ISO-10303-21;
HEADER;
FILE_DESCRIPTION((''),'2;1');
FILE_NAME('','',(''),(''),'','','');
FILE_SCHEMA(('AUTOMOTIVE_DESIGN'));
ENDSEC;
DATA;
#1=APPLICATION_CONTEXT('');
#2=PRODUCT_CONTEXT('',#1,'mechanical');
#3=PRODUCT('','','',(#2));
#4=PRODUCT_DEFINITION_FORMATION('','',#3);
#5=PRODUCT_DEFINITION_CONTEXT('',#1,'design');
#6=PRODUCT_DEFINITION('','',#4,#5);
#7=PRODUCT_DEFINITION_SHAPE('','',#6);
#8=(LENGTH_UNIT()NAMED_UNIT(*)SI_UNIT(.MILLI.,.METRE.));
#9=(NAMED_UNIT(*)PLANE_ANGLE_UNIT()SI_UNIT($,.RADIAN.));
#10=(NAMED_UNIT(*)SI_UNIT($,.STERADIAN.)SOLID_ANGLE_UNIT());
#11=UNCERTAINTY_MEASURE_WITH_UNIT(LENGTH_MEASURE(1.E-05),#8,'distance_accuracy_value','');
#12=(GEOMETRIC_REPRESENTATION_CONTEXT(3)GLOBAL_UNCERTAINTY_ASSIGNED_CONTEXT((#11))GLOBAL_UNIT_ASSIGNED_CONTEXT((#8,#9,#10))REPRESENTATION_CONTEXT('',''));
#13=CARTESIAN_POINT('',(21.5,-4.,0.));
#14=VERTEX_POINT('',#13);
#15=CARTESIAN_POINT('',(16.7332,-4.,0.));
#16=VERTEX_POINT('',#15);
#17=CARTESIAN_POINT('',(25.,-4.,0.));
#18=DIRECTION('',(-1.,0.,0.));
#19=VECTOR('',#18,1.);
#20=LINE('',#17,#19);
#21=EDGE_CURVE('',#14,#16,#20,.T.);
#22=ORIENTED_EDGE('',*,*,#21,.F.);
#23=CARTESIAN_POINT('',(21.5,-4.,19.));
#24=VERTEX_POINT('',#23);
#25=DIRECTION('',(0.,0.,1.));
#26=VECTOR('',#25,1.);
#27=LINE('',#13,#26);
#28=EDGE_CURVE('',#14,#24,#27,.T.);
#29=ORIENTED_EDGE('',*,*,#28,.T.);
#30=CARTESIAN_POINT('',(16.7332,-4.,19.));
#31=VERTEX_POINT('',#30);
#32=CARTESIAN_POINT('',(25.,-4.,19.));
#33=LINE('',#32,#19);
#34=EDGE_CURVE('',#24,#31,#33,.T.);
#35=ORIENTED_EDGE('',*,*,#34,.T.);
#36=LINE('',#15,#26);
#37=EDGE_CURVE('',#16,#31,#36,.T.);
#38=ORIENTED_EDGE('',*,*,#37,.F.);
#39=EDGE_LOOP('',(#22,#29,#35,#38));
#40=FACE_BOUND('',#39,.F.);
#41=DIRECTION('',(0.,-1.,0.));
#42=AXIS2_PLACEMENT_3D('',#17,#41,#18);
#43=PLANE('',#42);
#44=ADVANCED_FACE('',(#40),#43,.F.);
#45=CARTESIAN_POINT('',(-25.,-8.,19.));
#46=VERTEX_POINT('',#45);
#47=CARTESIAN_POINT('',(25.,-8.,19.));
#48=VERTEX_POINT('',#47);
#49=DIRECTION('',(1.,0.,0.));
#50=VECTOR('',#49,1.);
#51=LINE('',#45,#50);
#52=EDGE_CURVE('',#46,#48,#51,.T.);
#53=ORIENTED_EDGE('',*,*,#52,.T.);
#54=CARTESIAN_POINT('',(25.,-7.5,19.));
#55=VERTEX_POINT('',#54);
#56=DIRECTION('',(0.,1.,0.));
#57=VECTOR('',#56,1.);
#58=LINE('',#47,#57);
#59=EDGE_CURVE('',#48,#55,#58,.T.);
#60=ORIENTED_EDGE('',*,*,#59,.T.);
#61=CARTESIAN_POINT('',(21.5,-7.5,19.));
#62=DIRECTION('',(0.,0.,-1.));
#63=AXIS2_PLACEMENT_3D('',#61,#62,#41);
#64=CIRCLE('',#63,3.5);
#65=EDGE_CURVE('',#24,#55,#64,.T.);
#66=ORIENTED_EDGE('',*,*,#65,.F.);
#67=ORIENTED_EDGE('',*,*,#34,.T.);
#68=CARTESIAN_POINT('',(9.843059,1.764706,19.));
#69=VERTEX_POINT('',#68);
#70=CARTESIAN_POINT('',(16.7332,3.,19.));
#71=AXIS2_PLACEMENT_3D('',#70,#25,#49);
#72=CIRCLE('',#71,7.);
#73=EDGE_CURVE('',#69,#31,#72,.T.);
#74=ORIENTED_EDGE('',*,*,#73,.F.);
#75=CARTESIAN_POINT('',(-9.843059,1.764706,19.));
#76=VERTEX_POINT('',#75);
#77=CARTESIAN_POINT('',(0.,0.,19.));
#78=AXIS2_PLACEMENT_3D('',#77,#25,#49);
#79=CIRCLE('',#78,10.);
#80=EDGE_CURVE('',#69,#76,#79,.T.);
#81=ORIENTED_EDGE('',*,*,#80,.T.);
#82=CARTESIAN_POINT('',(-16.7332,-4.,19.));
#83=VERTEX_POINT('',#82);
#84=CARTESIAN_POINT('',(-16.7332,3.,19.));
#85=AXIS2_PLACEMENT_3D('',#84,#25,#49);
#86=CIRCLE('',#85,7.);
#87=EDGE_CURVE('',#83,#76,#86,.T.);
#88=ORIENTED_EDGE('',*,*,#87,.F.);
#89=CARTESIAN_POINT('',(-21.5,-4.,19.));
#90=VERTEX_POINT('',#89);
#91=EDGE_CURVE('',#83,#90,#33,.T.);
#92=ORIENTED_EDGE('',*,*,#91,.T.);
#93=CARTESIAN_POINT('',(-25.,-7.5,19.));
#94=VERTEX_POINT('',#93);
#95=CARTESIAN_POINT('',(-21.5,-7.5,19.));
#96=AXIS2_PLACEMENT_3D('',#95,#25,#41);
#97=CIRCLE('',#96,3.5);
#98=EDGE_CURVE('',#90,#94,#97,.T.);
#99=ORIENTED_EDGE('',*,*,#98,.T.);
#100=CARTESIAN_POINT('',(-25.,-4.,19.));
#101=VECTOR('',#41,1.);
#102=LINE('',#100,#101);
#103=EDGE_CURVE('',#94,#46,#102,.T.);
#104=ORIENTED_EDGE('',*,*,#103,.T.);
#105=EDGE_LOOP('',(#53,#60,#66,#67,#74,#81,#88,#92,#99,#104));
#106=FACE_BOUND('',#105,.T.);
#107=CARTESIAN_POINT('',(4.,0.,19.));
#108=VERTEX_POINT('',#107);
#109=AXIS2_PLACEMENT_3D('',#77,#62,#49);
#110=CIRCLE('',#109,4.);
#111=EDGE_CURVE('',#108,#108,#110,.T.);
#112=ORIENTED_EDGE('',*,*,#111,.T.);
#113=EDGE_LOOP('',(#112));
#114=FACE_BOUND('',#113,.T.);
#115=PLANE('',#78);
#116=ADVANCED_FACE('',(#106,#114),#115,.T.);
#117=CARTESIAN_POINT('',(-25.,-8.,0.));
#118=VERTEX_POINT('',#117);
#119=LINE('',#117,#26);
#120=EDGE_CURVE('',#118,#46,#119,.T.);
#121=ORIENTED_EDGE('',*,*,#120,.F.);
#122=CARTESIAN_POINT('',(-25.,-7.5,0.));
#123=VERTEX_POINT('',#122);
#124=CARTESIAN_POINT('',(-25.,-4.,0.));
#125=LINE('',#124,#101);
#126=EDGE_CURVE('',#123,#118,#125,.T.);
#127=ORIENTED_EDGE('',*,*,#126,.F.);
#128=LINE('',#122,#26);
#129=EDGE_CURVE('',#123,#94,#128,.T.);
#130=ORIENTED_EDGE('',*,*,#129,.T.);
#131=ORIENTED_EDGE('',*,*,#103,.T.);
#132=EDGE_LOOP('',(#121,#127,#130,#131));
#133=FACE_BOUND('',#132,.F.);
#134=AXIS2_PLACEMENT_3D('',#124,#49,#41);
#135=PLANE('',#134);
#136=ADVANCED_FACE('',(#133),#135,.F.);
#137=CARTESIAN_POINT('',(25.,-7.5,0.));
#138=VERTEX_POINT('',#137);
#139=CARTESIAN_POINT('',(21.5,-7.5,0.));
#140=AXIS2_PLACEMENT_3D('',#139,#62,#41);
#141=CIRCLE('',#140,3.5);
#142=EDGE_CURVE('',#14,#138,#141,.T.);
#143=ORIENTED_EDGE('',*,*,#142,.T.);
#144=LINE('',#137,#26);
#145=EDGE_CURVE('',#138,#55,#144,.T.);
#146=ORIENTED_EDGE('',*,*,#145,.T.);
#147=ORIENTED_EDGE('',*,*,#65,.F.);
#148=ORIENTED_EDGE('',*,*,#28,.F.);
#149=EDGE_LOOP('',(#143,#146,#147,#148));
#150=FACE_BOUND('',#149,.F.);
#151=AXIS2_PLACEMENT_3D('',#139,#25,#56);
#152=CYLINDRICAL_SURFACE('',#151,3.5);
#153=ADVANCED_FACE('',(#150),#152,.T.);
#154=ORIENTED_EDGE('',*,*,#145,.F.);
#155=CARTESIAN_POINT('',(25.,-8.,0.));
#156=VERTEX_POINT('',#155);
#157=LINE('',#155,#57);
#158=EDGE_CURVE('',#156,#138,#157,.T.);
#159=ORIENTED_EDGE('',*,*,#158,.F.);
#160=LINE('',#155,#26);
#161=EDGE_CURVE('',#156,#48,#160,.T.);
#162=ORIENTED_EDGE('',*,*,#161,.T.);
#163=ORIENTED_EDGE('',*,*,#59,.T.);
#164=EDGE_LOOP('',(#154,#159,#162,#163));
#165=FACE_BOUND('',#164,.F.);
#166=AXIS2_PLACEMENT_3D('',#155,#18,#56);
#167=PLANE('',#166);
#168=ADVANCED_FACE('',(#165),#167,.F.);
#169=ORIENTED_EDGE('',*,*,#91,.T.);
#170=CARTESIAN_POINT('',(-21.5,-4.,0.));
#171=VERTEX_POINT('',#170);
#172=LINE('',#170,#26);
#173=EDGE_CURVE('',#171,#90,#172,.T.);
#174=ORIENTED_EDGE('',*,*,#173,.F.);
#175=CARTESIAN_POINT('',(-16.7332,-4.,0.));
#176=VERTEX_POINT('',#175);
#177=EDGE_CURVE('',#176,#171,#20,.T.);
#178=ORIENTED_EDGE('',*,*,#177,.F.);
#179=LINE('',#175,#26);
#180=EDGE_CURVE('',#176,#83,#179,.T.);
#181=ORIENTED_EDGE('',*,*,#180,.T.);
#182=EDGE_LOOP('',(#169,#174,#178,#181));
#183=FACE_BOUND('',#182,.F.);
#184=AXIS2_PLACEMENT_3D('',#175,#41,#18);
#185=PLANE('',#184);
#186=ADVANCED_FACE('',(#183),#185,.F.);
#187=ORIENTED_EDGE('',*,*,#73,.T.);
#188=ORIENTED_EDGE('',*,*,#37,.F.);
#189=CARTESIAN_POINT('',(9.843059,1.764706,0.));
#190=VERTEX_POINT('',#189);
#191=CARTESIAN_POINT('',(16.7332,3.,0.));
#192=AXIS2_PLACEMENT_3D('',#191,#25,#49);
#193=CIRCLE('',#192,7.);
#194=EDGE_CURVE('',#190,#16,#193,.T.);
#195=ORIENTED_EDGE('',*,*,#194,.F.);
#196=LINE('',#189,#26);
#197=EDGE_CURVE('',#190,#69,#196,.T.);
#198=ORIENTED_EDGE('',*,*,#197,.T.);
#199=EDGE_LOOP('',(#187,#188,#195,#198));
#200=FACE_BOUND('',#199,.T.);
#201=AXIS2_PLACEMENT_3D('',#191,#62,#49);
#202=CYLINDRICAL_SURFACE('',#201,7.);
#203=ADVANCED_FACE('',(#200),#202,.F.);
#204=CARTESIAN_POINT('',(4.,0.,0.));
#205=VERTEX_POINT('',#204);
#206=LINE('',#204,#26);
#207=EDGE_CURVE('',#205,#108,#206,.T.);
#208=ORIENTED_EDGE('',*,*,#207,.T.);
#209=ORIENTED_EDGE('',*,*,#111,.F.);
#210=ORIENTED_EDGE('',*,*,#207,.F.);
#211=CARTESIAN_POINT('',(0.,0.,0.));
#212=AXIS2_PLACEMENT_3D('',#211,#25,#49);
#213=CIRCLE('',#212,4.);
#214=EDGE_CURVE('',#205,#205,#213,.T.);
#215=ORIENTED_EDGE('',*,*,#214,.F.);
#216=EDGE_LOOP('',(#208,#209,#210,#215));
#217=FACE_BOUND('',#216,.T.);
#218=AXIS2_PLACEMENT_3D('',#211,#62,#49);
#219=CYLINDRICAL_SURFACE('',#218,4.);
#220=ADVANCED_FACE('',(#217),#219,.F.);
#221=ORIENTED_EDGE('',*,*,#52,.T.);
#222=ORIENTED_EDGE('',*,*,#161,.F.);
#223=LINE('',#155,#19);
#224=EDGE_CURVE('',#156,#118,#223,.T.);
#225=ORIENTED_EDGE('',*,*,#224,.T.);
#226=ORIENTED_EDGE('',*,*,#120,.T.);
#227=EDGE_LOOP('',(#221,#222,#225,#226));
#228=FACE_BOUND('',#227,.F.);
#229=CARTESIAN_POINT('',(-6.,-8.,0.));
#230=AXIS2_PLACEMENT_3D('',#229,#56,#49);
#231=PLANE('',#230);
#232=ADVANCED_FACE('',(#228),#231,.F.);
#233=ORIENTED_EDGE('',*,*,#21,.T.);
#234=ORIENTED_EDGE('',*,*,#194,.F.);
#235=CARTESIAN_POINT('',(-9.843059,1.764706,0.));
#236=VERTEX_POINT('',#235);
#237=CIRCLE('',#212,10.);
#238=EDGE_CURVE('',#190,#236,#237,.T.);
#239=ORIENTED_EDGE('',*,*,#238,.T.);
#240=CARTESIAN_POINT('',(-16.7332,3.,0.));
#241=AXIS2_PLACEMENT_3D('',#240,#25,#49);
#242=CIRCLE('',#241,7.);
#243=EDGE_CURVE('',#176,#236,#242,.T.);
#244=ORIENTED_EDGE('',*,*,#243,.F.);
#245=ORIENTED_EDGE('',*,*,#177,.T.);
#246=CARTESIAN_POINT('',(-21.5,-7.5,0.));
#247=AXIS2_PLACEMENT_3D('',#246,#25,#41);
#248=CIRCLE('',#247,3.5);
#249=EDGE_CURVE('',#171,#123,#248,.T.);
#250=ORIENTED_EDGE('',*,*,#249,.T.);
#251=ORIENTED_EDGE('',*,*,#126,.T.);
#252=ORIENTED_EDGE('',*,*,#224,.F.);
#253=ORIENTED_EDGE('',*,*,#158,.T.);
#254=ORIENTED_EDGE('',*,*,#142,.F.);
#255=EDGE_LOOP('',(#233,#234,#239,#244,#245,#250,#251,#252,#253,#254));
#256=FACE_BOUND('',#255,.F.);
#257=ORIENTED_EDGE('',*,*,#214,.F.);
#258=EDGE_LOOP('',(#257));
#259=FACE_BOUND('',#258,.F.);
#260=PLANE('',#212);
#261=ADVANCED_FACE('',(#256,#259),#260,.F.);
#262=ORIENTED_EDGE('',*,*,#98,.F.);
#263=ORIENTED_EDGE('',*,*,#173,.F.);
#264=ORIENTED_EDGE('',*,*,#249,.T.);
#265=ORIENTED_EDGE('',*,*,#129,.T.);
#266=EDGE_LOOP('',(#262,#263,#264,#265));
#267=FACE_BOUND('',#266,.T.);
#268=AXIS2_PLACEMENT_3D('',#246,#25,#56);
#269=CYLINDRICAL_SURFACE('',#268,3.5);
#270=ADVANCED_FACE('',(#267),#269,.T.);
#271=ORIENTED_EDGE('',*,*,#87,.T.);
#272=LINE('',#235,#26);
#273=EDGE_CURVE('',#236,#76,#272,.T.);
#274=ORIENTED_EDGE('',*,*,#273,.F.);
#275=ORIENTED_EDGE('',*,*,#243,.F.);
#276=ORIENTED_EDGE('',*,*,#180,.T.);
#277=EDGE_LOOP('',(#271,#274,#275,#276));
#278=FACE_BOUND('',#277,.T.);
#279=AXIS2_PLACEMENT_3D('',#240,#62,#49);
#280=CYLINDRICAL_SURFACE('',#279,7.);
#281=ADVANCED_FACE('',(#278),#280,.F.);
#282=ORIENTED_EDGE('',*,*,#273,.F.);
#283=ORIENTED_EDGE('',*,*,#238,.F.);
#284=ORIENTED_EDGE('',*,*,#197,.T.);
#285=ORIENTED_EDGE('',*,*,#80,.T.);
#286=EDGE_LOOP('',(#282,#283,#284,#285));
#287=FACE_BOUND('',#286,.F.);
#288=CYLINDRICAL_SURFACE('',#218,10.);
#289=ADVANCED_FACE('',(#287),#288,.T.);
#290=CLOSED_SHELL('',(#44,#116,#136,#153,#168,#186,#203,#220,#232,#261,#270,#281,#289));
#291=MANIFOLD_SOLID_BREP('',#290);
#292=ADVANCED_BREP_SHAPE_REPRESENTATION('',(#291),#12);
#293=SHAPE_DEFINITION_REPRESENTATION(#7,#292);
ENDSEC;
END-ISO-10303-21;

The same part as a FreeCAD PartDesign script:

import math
import FreeCAD as App
import Part
import Sketcher


def edges_at(feature, points):
    """Names of the edges that pass closest to the given points."""
    edges = feature.Shape.Edges
    near = lambda p: min(range(len(edges)), key=lambda i: edges[i].distToShape(Part.Vertex(*p))[0])
    return sorted({f"Edge{near(p) + 1}" for p in points})

doc = App.newDocument("Part")
body = doc.addObject("PartDesign::Body", "Body")

# Sketch on XY plane
sketch1 = body.newObject("Sketcher::SketchObject", "Sketch")
sketch1.AttachmentSupport = (doc.getObject("XY_Plane"), [""])
sketch1.MapMode = "FlatFace"
sketch1.addGeometry([
    Part.ArcOfCircle(Part.Circle(App.Vector(0, 0, 0), App.Vector(0, 0, 1), 10), math.radians(10), math.radians(170)),  # 0
    Part.ArcOfCircle(Part.Circle(App.Vector(-16.7, 3, 0), App.Vector(0, 0, 1), 7), math.radians(-90), math.radians(-10)),  # 1
    Part.LineSegment(App.Vector(-16.7, -4, 0), App.Vector(-25, -4, 0)),  # 2
    Part.LineSegment(App.Vector(-25, -4, 0), App.Vector(-25, -8, 0)),  # 3
    Part.LineSegment(App.Vector(-25, -8, 0), App.Vector(25, -8, 0)),  # 4
    Part.LineSegment(App.Vector(25, -8, 0), App.Vector(25, -4, 0)),  # 5
    Part.LineSegment(App.Vector(25, -4, 0), App.Vector(16.7, -4, 0)),  # 6
    Part.ArcOfCircle(Part.Circle(App.Vector(16.7, 3, 0), App.Vector(0, 0, 1), 7), math.radians(-170), math.radians(-90)),  # 7
    Part.Circle(App.Vector(0, 0, 0), App.Vector(0, 0, 1), 4),  # 8
], False)
sketch1.addConstraint([
    Sketcher.Constraint("Tangent", 0, 2, 1, 2),
    Sketcher.Constraint("Tangent", 1, 1, 2, 1),
    Sketcher.Constraint("Coincident", 2, 2, 3, 1),
    Sketcher.Constraint("Coincident", 3, 2, 4, 1),
    Sketcher.Constraint("Coincident", 4, 2, 5, 1),
    Sketcher.Constraint("Coincident", 5, 2, 6, 1),
    Sketcher.Constraint("Tangent", 6, 2, 7, 2),
    Sketcher.Constraint("Tangent", 7, 1, 0, 1),
    Sketcher.Constraint("Horizontal", 2),
    Sketcher.Constraint("Vertical", 3),
    Sketcher.Constraint("Horizontal", 4),
    Sketcher.Constraint("Vertical", 5),
    Sketcher.Constraint("Horizontal", 6),
    Sketcher.Constraint("Coincident", 0, 3, -1, 1),
    Sketcher.Constraint("Coincident", 8, 3, -1, 1),
    Sketcher.Constraint("Equal", 1, 7),
    Sketcher.Constraint("Symmetric", 2, 2, 5, 2, -2),
    Sketcher.Constraint("Diameter", 8, 8.0),
    Sketcher.Constraint("Radius", 0, 10.0),
    Sketcher.Constraint("Radius", 1, 7.0),
    Sketcher.Constraint("DistanceX", 4, 1, 4, 2, 50.0),
    Sketcher.Constraint("DistanceY", 3, 2, 3, 1, 4.0),
    Sketcher.Constraint("DistanceY", 1, 1, -1, 1, 4.0),
])
pad1 = body.newObject("PartDesign::Pad", "Pad")
pad1.Profile = sketch1
pad1.Length = 19
doc.recompute()

fillet = body.newObject("PartDesign::Fillet", "Fillet")
fillet.Base = (pad1, edges_at(pad1, [(25, -4, 9.5), (-25, -4, 9.5)]))
fillet.Radius = 3.5

doc.recompute()
